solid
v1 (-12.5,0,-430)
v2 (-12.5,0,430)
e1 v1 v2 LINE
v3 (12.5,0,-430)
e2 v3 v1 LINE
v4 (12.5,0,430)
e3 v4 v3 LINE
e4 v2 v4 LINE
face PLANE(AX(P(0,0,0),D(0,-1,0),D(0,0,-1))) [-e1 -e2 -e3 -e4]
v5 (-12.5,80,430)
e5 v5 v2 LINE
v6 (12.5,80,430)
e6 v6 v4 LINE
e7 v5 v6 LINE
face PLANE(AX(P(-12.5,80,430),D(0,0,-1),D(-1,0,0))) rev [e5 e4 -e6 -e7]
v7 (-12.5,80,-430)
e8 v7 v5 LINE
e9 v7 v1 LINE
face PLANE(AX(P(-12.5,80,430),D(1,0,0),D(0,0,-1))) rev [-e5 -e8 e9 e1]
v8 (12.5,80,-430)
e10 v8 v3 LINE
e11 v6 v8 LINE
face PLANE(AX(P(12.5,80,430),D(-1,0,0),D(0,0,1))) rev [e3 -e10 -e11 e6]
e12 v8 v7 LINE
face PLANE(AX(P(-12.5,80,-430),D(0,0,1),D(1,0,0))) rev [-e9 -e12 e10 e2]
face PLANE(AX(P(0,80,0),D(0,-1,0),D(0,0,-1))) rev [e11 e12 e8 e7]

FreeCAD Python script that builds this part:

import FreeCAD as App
import Part
import Sketcher
from FreeCAD import Vector

doc = App.newDocument("Part")
params = doc.addObject("Spreadsheet::Sheet", "Params")
for row, (alias, value) in enumerate([
    ("sketch1_width", "25 mm"),
    ("sketch1_height", "860 mm"),
    ("pad1_length", "80 mm"),
], start=1):
    params.set(f"A{row}", alias)
    params.set(f"B{row}", "=" + value)
    params.setAlias(f"B{row}", alias)

body = doc.addObject("PartDesign::Body", "Body")

sketch1 = doc.addObject("Sketcher::SketchObject", "Sketch")
body.addObject(sketch1)
sketch1.AttachmentSupport = (doc.XZ_Plane, [""])
sketch1.MapMode = "FlatFace"
sketch1.addGeometry([
    Part.LineSegment(Vector(-12, -430, 0), Vector(-12, 430, 0)),
    Part.LineSegment(Vector(-12, 430, 0), Vector(12, 430, 0)),
    Part.LineSegment(Vector(12, 430, 0), Vector(12, -430, 0)),
    Part.LineSegment(Vector(12, -430, 0), Vector(-12, -430, 0)),
], False)
sketch1.addConstraint([
    Sketcher.Constraint("Coincident", 0, 2, 1, 1),
    Sketcher.Constraint("Coincident", 1, 2, 2, 1),
    Sketcher.Constraint("Coincident", 2, 2, 3, 1),
    Sketcher.Constraint("Coincident", 3, 2, 0, 1),
    Sketcher.Constraint("Vertical", 0),
    Sketcher.Constraint("Horizontal", 1),
    Sketcher.Constraint("Vertical", 2),
    Sketcher.Constraint("Horizontal", 3),
    Sketcher.Constraint("Symmetric", 0, 2, 2, 2, -1, 1),
    Sketcher.Constraint("DistanceX", 1, 1, 1, 2, 25.0),
    Sketcher.Constraint("DistanceY", 0, 1, 0, 2, 860.0),
])
sketch1.setExpression("Constraints[9]", "Params.sketch1_width")
sketch1.setExpression("Constraints[10]", "Params.sketch1_height")
pad1 = doc.addObject("PartDesign::Pad", "Pad")
body.addObject(pad1)
pad1.Profile = sketch1
pad1.setExpression("Length", "Params.pad1_length")
pad1.Reversed = True

doc.recompute()
